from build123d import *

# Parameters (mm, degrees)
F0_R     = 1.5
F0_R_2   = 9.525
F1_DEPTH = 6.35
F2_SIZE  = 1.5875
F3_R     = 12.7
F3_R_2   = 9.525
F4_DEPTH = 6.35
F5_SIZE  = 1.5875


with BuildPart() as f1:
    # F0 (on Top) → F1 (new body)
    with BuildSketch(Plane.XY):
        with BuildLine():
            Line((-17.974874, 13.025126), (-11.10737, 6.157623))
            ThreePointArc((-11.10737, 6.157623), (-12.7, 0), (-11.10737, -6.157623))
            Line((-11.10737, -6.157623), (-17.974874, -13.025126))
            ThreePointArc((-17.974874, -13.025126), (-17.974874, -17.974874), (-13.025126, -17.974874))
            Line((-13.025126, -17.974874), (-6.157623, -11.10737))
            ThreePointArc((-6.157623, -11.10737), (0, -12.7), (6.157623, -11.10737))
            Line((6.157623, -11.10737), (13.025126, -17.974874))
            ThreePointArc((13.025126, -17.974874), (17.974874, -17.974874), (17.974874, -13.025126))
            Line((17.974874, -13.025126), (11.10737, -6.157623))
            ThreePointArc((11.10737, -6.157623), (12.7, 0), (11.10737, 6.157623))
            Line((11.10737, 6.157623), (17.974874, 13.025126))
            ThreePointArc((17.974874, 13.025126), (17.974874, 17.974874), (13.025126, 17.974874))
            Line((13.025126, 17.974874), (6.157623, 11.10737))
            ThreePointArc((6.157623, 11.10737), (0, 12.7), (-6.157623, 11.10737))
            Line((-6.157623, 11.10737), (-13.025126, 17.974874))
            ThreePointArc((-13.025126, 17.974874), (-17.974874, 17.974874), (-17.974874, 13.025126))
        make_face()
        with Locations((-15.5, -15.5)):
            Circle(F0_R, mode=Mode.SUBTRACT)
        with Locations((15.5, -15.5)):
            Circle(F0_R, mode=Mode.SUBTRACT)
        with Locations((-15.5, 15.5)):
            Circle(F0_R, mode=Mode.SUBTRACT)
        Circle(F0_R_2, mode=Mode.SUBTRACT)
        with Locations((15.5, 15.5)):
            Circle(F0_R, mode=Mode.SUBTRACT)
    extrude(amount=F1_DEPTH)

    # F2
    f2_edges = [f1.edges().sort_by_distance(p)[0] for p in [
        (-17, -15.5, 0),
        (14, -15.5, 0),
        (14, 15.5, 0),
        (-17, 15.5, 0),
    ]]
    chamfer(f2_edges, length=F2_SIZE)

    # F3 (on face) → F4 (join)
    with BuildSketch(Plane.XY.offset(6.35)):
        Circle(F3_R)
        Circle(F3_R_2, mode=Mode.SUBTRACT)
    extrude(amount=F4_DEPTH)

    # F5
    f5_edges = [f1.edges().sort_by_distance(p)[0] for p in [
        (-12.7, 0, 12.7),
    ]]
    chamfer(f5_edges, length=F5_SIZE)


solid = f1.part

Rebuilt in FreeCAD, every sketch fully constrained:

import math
import FreeCAD as App
import Part
import Sketcher
from FreeCAD import Vector
Q = App.Units.Quantity


def edges_at(feature, points):
    """Names of the edges that pass closest to the given points."""
    edges = feature.Shape.Edges
    near = lambda p: min(range(len(edges)), key=lambda i: edges[i].distToShape(Part.Vertex(*p))[0])
    return sorted({f"Edge{near(p) + 1}" for p in points})

doc = App.newDocument("Part")
params = doc.addObject("Spreadsheet::Sheet", "Params")
for row, (alias, value) in enumerate([
    ("sketch1_radius", "0.4999999 in"),
    ("sketch1_diameter", "0.75 in"),
    ("pad1_length", "0.25 in"),
    ("chamfer_size", "0.0625 in"),
    ("sketch2_diameter", "1 in"),
    ("sketch2_diameter2", "0.75 in"),
    ("pad2_length", "0.25 in"),
    ("chamfer2_size", "0.0625 in"),
], start=1):
    params.set(f"A{row}", alias)
    params.set(f"B{row}", "=" + value)
    params.setAlias(f"B{row}", alias)

body = doc.addObject("PartDesign::Body", "Body")

sketch1 = body.newObject("Sketcher::SketchObject", "Sketch")
sketch1.AttachmentSupport = (doc.getObject("XY_Plane"), [""])
sketch1.MapMode = "FlatFace"
sketch1.addGeometry([
    Part.LineSegment(Vector(-18, 13, 0), Vector(-11.1, 6.2, 0)),
    Part.ArcOfCircle(Part.Circle(Vector(0, 0, 0), Vector(0, 0, 1), 12.7), math.radians(151), math.radians(209)),
    Part.LineSegment(Vector(-11.1, -6.2, 0), Vector(-18, -13, 0)),
    Part.ArcOfCircle(Part.Circle(Vector(-15.5, -15.5, 0), Vector(0, 0, 1), 3.5), math.radians(135), math.radians(315)),
    Part.LineSegment(Vector(-13, -18, 0), Vector(-6.2, -11.1, 0)),
    Part.ArcOfCircle(Part.Circle(Vector(0, 0, 0), Vector(0, 0, 1), 12.7), math.radians(-119), math.radians(-61)),
    Part.LineSegment(Vector(6.2, -11.1, 0), Vector(13, -18, 0)),
    Part.ArcOfCircle(Part.Circle(Vector(15.5, -15.5, 0), Vector(0, 0, 1), 3.5), math.radians(-135), math.radians(45)),
    Part.LineSegment(Vector(18, -13, 0), Vector(11.1, -6.2, 0)),
    Part.ArcOfCircle(Part.Circle(Vector(0, 0, 0), Vector(0, 0, 1), 12.7), math.radians(-29), math.radians(29)),
    Part.LineSegment(Vector(11.1, 6.2, 0), Vector(18, 13, 0)),
    Part.ArcOfCircle(Part.Circle(Vector(15.5, 15.5, 0), Vector(0, 0, 1), 3.5), math.radians(-45), math.radians(135)),
    Part.LineSegment(Vector(13, 18, 0), Vector(6.2, 11.1, 0)),
    Part.ArcOfCircle(Part.Circle(Vector(0, 0, 0), Vector(0, 0, 1), 12.7), math.radians(61), math.radians(119)),
    Part.LineSegment(Vector(-6.2, 11.1, 0), Vector(-13, 18, 0)),
    Part.ArcOfCircle(Part.Circle(Vector(-15.5, 15.5, 0), Vector(0, 0, 1), 3.5), math.radians(45), math.radians(225)),
    Part.Circle(Vector(-15.5, -15.5, 0), Vector(0, 0, 1), 1.5),
    Part.Circle(Vector(15.5, -15.5, 0), Vector(0, 0, 1), 1.5),
    Part.Circle(Vector(-15.5, 15.5, 0), Vector(0, 0, 1), 1.5),
    Part.Circle(Vector(0, 0, 0), Vector(0, 0, 1), 9.5),
    Part.Circle(Vector(15.5, 15.5, 0), Vector(0, 0, 1), 1.5),
], False)
sketch1.addConstraint([
    Sketcher.Constraint("Coincident", 0, 2, 1, 1),
    Sketcher.Constraint("Coincident", 1, 2, 2, 1),
    Sketcher.Constraint("Tangent", 2, 2, 3, 1),
    Sketcher.Constraint("Tangent", 3, 2, 4, 1),
    Sketcher.Constraint("Coincident", 4, 2, 5, 1),
    Sketcher.Constraint("Coincident", 5, 2, 6, 1),
    Sketcher.Constraint("Tangent", 6, 2, 7, 1),
    Sketcher.Constraint("Tangent", 7, 2, 8, 1),
    Sketcher.Constraint("Coincident", 8, 2, 9, 1),
    Sketcher.Constraint("Coincident", 9, 2, 10, 1),
    Sketcher.Constraint("Tangent", 10, 2, 11, 1),
    Sketcher.Constraint("Tangent", 11, 2, 12, 1),
    Sketcher.Constraint("Coincident", 12, 2, 13, 1),
    Sketcher.Constraint("Coincident", 13, 2, 14, 1),
    Sketcher.Constraint("Tangent", 14, 2, 15, 1),
    Sketcher.Constraint("Tangent", 15, 2, 0, 1),
    Sketcher.Constraint("Coincident", 1, 3, -1, 1),
    Sketcher.Constraint("Coincident", 5, 3, -1, 1),
    Sketcher.Constraint("Coincident", 9, 3, -1, 1),
    Sketcher.Constraint("Coincident", 13, 3, -1, 1),
    Sketcher.Constraint("Coincident", 19, 3, -1, 1),
    Sketcher.Constraint("Coincident", 16, 3, 3, 3),
    Sketcher.Constraint("Coincident", 17, 3, 7, 3),
    Sketcher.Constraint("Coincident", 18, 3, 15, 3),
    Sketcher.Constraint("Coincident", 20, 3, 11, 3),
    Sketcher.Constraint("Equal", 1, 5),
    Sketcher.Constraint("Equal", 3, 7),
    Sketcher.Constraint("Equal", 5, 9),
    Sketcher.Constraint("Equal", 7, 11),
    Sketcher.Constraint("Equal", 9, 13),
    Sketcher.Constraint("Equal", 11, 15),
    Sketcher.Constraint("Equal", 16, 17),
    Sketcher.Constraint("Equal", 17, 18),
    Sketcher.Constraint("Equal", 18, 20),
    Sketcher.Constraint("Symmetric", 3, 3, 11, 3, -1, 1),
    Sketcher.Constraint("Symmetric", 7, 3, 15, 3, -1, 1),
    Sketcher.Constraint("Symmetric", 3, 3, 7, 3, -2),
    Sketcher.Constraint("Perpendicular", 0, 2),
    Sketcher.Constraint("Parallel", 2, 4),
    Sketcher.Constraint("Perpendicular", 4, 6),
    Sketcher.Constraint("Parallel", 6, 8),
    Sketcher.Constraint("Perpendicular", 8, 10),
    Sketcher.Constraint("Parallel", 10, 12),
    Sketcher.Constraint("Perpendicular", 12, 14),
    Sketcher.Constraint("Horizontal", 4, 2, 5, 2),
    Sketcher.Constraint("Equal", 2, 4),
    Sketcher.Constraint("Radius", 1, Q("0.4999999 in")),
    Sketcher.Constraint("Diameter", 19, Q("0.75 in")),
    Sketcher.Constraint("Diameter", 16, Q("3 mm")),
    Sketcher.Constraint("Radius", 3, Q("3.5 mm")),
    Sketcher.Constraint("DistanceX", 3, 3, -1, 1, Q("15.5 mm")),
])
sketch1.setExpression("Constraints[46]", "Params.sketch1_radius")
sketch1.setExpression("Constraints[47]", "Params.sketch1_diameter")
pad1 = body.newObject("PartDesign::Pad", "Pad")
pad1.Profile = sketch1
pad1.setExpression("Length", "Params.pad1_length")
doc.recompute()

chamfer = body.newObject("PartDesign::Chamfer", "Chamfer")
chamfer.Base = (pad1, edges_at(pad1, [
    (-17, -15.5, 0),
    (14, -15.5, 0),
    (14, 15.5, 0),
    (-17, 15.5, 0),
]))
chamfer.setExpression("Size", "Params.chamfer_size")

sketch2 = body.newObject("Sketcher::SketchObject", "Sketch001")
sketch2.AttachmentSupport = (doc.getObject("XY_Plane"), [""])
sketch2.MapMode = "FlatFace"
sketch2.AttachmentOffset = App.Placement(Vector(0, 0, 0.25 * 25.4), App.Rotation())
sketch2.addGeometry([
    Part.Circle(Vector(0, 0, 0), Vector(0, 0, 1), 13),
    Part.Circle(Vector(0, 0, 0), Vector(0, 0, 1), 10),
], False)
sketch2.addConstraint([
    Sketcher.Constraint("Coincident", 0, 3, -1, 1),
    Sketcher.Constraint("Coincident", 1, 3, -1, 1),
    Sketcher.Constraint("Diameter", 0, Q("1 in")),
    Sketcher.Constraint("Diameter", 1, Q("0.75 in")),
])
sketch2.setExpression("Constraints[2]", "Params.sketch2_diameter")
sketch2.setExpression("Constraints[3]", "Params.sketch2_diameter2")
pad2 = body.newObject("PartDesign::Pad", "Pad001")
pad2.Profile = sketch2
pad2.setExpression("Length", "Params.pad2_length")
doc.recompute()

chamfer2 = body.newObject("PartDesign::Chamfer", "Chamfer001")
chamfer2.Base = (pad2, edges_at(pad2, [(-12.7, 0, 12.7)]))
chamfer2.setExpression("Size", "Params.chamfer2_size")

doc.recompute()
